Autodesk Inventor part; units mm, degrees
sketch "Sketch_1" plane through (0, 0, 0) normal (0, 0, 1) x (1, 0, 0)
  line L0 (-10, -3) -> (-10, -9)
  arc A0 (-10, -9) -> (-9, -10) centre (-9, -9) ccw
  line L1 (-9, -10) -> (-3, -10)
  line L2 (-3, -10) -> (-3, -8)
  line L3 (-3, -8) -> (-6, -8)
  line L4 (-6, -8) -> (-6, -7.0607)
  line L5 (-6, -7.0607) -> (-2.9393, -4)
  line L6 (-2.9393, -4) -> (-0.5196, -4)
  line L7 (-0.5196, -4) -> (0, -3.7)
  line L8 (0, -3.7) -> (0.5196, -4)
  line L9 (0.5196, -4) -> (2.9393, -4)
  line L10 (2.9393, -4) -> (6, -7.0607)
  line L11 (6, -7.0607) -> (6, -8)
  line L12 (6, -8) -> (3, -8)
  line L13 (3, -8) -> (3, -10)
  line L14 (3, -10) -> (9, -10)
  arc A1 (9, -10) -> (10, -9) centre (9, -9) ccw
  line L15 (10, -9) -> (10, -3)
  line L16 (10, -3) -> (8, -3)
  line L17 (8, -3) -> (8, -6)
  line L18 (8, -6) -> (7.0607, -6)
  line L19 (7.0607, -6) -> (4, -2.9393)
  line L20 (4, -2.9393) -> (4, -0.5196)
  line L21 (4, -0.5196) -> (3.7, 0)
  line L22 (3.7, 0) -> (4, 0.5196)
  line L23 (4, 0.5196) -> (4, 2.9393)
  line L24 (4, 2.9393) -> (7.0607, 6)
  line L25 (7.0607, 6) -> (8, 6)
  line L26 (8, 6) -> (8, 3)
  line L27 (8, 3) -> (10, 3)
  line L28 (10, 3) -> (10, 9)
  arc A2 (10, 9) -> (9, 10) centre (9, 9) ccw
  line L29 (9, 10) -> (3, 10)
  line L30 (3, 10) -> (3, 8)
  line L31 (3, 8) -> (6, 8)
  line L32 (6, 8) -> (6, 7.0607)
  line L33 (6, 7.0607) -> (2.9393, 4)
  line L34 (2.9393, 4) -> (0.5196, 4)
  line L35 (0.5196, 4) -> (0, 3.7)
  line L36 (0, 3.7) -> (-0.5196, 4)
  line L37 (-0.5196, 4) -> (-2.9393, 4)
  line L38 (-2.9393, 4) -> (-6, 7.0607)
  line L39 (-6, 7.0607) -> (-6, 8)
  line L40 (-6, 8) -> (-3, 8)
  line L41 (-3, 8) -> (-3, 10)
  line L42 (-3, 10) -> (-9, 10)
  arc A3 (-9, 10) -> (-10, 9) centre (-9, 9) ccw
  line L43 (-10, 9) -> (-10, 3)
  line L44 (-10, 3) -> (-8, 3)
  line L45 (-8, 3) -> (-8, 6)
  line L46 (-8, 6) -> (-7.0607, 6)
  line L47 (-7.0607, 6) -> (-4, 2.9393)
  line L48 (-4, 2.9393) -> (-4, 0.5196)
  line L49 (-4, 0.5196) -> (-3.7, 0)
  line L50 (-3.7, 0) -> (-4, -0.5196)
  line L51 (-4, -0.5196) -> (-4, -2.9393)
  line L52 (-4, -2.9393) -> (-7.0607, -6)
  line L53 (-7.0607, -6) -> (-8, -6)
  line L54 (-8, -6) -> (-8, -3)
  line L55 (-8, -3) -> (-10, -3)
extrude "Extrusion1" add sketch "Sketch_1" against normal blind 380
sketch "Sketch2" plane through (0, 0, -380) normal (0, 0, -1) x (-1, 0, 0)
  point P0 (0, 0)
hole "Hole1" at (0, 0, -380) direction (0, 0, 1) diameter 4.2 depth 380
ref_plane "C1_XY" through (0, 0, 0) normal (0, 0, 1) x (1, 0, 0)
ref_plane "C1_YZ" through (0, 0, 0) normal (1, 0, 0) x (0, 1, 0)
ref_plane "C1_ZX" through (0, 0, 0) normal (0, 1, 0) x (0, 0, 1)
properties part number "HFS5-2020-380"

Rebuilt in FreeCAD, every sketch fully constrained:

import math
import FreeCAD as App
import Part
import Sketcher
Q = App.Units.Quantity

doc = App.newDocument("Part")
body = doc.addObject("PartDesign::Body", "Body")

# Sketch on XY plane
sketch1 = body.newObject("Sketcher::SketchObject", "Sketch")
sketch1.AttachmentSupport = (doc.getObject("XY_Plane"), [""])
sketch1.MapMode = "FlatFace"
sketch1.addGeometry([
    Part.LineSegment(App.Vector(-8, -3, 0), App.Vector(-10, -3, 0)),  # 0
    Part.LineSegment(App.Vector(-10, -3, 0), App.Vector(-10, -9, 0)),  # 1
    Part.ArcOfCircle(Part.Circle(App.Vector(-9, -9, 0), App.Vector(0, 0, 1), 1), math.radians(180), math.radians(270)),  # 2
    Part.LineSegment(App.Vector(-9, -10, 0), App.Vector(-3, -10, 0)),  # 3
    Part.LineSegment(App.Vector(-3, -10, 0), App.Vector(-3, -8, 0)),  # 4
    Part.LineSegment(App.Vector(-3, -8, 0), App.Vector(-6, -8, 0)),  # 5
    Part.LineSegment(App.Vector(-6, -8, 0), App.Vector(-6, -7.1, 0)),  # 6
    Part.LineSegment(App.Vector(-6, -7.1, 0), App.Vector(-2.9, -4, 0)),  # 7
    Part.LineSegment(App.Vector(-2.9, -4, 0), App.Vector(-0.5, -4, 0)),  # 8
    Part.LineSegment(App.Vector(-0.5, -4, 0), App.Vector(0, -3.7, 0)),  # 9
    Part.LineSegment(App.Vector(0, -3.7, 0), App.Vector(0.5, -4, 0)),  # 10
    Part.LineSegment(App.Vector(0.5, -4, 0), App.Vector(2.9, -4, 0)),  # 11
    Part.LineSegment(App.Vector(2.9, -4, 0), App.Vector(6, -7.1, 0)),  # 12
    Part.LineSegment(App.Vector(6, -7.1, 0), App.Vector(6, -8, 0)),  # 13
    Part.LineSegment(App.Vector(6, -8, 0), App.Vector(3, -8, 0)),  # 14
    Part.LineSegment(App.Vector(3, -8, 0), App.Vector(3, -10, 0)),  # 15
    Part.LineSegment(App.Vector(3, -10, 0), App.Vector(9, -10, 0)),  # 16
    Part.ArcOfCircle(Part.Circle(App.Vector(9, -9, 0), App.Vector(0, 0, 1), 1), math.radians(-90), math.radians(0)),  # 17
    Part.LineSegment(App.Vector(10, -9, 0), App.Vector(10, -3, 0)),  # 18
    Part.LineSegment(App.Vector(10, -3, 0), App.Vector(8, -3, 0)),  # 19
    Part.LineSegment(App.Vector(8, -3, 0), App.Vector(8, -6, 0)),  # 20
    Part.LineSegment(App.Vector(8, -6, 0), App.Vector(7.1, -6, 0)),  # 21
    Part.LineSegment(App.Vector(7.1, -6, 0), App.Vector(4, -2.9, 0)),  # 22
    Part.LineSegment(App.Vector(4, -2.9, 0), App.Vector(4, -0.5, 0)),  # 23
    Part.LineSegment(App.Vector(4, -0.5, 0), App.Vector(3.7, 0, 0)),  # 24
    Part.LineSegment(App.Vector(3.7, 0, 0), App.Vector(4, 0.5, 0)),  # 25
    Part.LineSegment(App.Vector(4, 0.5, 0), App.Vector(4, 2.9, 0)),  # 26
    Part.LineSegment(App.Vector(4, 2.9, 0), App.Vector(7.1, 6, 0)),  # 27
    Part.LineSegment(App.Vector(7.1, 6, 0), App.Vector(8, 6, 0)),  # 28
    Part.LineSegment(App.Vector(8, 6, 0), App.Vector(8, 3, 0)),  # 29
    Part.LineSegment(App.Vector(8, 3, 0), App.Vector(10, 3, 0)),  # 30
    Part.LineSegment(App.Vector(10, 3, 0), App.Vector(10, 9, 0)),  # 31
    Part.ArcOfCircle(Part.Circle(App.Vector(9, 9, 0), App.Vector(0, 0, 1), 1), math.radians(0), math.radians(90)),  # 32
    Part.LineSegment(App.Vector(9, 10, 0), App.Vector(3, 10, 0)),  # 33
    Part.LineSegment(App.Vector(3, 10, 0), App.Vector(3, 8, 0)),  # 34
    Part.LineSegment(App.Vector(3, 8, 0), App.Vector(6, 8, 0)),  # 35
    Part.LineSegment(App.Vector(6, 8, 0), App.Vector(6, 7.1, 0)),  # 36
    Part.LineSegment(App.Vector(6, 7.1, 0), App.Vector(2.9, 4, 0)),  # 37
    Part.LineSegment(App.Vector(2.9, 4, 0), App.Vector(0.5, 4, 0)),  # 38
    Part.LineSegment(App.Vector(0.5, 4, 0), App.Vector(0, 3.7, 0)),  # 39
    Part.LineSegment(App.Vector(0, 3.7, 0), App.Vector(-0.5, 4, 0)),  # 40
    Part.LineSegment(App.Vector(-0.5, 4, 0), App.Vector(-2.9, 4, 0)),  # 41
    Part.LineSegment(App.Vector(-2.9, 4, 0), App.Vector(-6, 7.1, 0)),  # 42
    Part.LineSegment(App.Vector(-6, 7.1, 0), App.Vector(-6, 8, 0)),  # 43
    Part.LineSegment(App.Vector(-6, 8, 0), App.Vector(-3, 8, 0)),  # 44
    Part.LineSegment(App.Vector(-3, 8, 0), App.Vector(-3, 10, 0)),  # 45
    Part.LineSegment(App.Vector(-3, 10, 0), App.Vector(-9, 10, 0)),  # 46
    Part.ArcOfCircle(Part.Circle(App.Vector(-9, 9, 0), App.Vector(0, 0, 1), 1), math.radians(90), math.radians(180)),  # 47
    Part.LineSegment(App.Vector(-10, 9, 0), App.Vector(-10, 3, 0)),  # 48
    Part.LineSegment(App.Vector(-10, 3, 0), App.Vector(-8, 3, 0)),  # 49
    Part.LineSegment(App.Vector(-8, 3, 0), App.Vector(-8, 6, 0)),  # 50
    Part.LineSegment(App.Vector(-8, 6, 0), App.Vector(-7.1, 6, 0)),  # 51
    Part.LineSegment(App.Vector(-7.1, 6, 0), App.Vector(-4, 2.9, 0)),  # 52
    Part.LineSegment(App.Vector(-4, 2.9, 0), App.Vector(-4, 0.5, 0)),  # 53
    Part.LineSegment(App.Vector(-4, 0.5, 0), App.Vector(-3.7, 0, 0)),  # 54
    Part.LineSegment(App.Vector(-3.7, 0, 0), App.Vector(-4, -0.5, 0)),  # 55
    Part.LineSegment(App.Vector(-4, -0.5, 0), App.Vector(-4, -2.9, 0)),  # 56
    Part.LineSegment(App.Vector(-4, -2.9, 0), App.Vector(-7.1, -6, 0)),  # 57
    Part.LineSegment(App.Vector(-7.1, -6, 0), App.Vector(-8, -6, 0)),  # 58
    Part.LineSegment(App.Vector(-8, -6, 0), App.Vector(-8, -3, 0)),  # 59
], False)
sketch1.addConstraint([
    Sketcher.Constraint("Coincident", 0, 2, 1, 1),
    Sketcher.Constraint("Tangent", 1, 2, 2, 1),
    Sketcher.Constraint("Tangent", 2, 2, 3, 1),
    Sketcher.Constraint("Coincident", 3, 2, 4, 1),
    Sketcher.Constraint("Coincident", 4, 2, 5, 1),
    Sketcher.Constraint("Coincident", 5, 2, 6, 1),
    Sketcher.Constraint("Coincident", 6, 2, 7, 1),
    Sketcher.Constraint("Coincident", 7, 2, 8, 1),
    Sketcher.Constraint("Coincident", 8, 2, 9, 1),
    Sketcher.Constraint("Coincident", 9, 2, 10, 1),
    Sketcher.Constraint("Coincident", 10, 2, 11, 1),
    Sketcher.Constraint("Coincident", 11, 2, 12, 1),
    Sketcher.Constraint("Coincident", 12, 2, 13, 1),
    Sketcher.Constraint("Coincident", 13, 2, 14, 1),
    Sketcher.Constraint("Coincident", 14, 2, 15, 1),
    Sketcher.Constraint("Coincident", 15, 2, 16, 1),
    Sketcher.Constraint("Tangent", 16, 2, 17, 1),
    Sketcher.Constraint("Tangent", 17, 2, 18, 1),
    Sketcher.Constraint("Coincident", 18, 2, 19, 1),
    Sketcher.Constraint("Coincident", 19, 2, 20, 1),
    Sketcher.Constraint("Coincident", 20, 2, 21, 1),
    Sketcher.Constraint("Coincident", 21, 2, 22, 1),
    Sketcher.Constraint("Coincident", 22, 2, 23, 1),
    Sketcher.Constraint("Coincident", 23, 2, 24, 1),
    Sketcher.Constraint("Coincident", 24, 2, 25, 1),
    Sketcher.Constraint("Coincident", 25, 2, 26, 1),
    Sketcher.Constraint("Coincident", 26, 2, 27, 1),
    Sketcher.Constraint("Coincident", 27, 2, 28, 1),
    Sketcher.Constraint("Coincident", 28, 2, 29, 1),
    Sketcher.Constraint("Coincident", 29, 2, 30, 1),
    Sketcher.Constraint("Coincident", 30, 2, 31, 1),
    Sketcher.Constraint("Tangent", 31, 2, 32, 1),
    Sketcher.Constraint("Tangent", 32, 2, 33, 1),
    Sketcher.Constraint("Coincident", 33, 2, 34, 1),
    Sketcher.Constraint("Coincident", 34, 2, 35, 1),
    Sketcher.Constraint("Coincident", 35, 2, 36, 1),
    Sketcher.Constraint("Coincident", 36, 2, 37, 1),
    Sketcher.Constraint("Coincident", 37, 2, 38, 1),
    Sketcher.Constraint("Coincident", 38, 2, 39, 1),
    Sketcher.Constraint("Coincident", 39, 2, 40, 1),
    Sketcher.Constraint("Coincident", 40, 2, 41, 1),
    Sketcher.Constraint("Coincident", 41, 2, 42, 1),
    Sketcher.Constraint("Coincident", 42, 2, 43, 1),
    Sketcher.Constraint("Coincident", 43, 2, 44, 1),
    Sketcher.Constraint("Coincident", 44, 2, 45, 1),
    Sketcher.Constraint("Coincident", 45, 2, 46, 1),
    Sketcher.Constraint("Tangent", 46, 2, 47, 1),
    Sketcher.Constraint("Tangent", 47, 2, 48, 1),
    Sketcher.Constraint("Coincident", 48, 2, 49, 1),
    Sketcher.Constraint("Coincident", 49, 2, 50, 1),
    Sketcher.Constraint("Coincident", 50, 2, 51, 1),
    Sketcher.Constraint("Coincident", 51, 2, 52, 1),
    Sketcher.Constraint("Coincident", 52, 2, 53, 1),
    Sketcher.Constraint("Coincident", 53, 2, 54, 1),
    Sketcher.Constraint("Coincident", 54, 2, 55, 1),
    Sketcher.Constraint("Coincident", 55, 2, 56, 1),
    Sketcher.Constraint("Coincident", 56, 2, 57, 1),
    Sketcher.Constraint("Coincident", 57, 2, 58, 1),
    Sketcher.Constraint("Coincident", 58, 2, 59, 1),
    Sketcher.Constraint("Coincident", 59, 2, 0, 1),
    Sketcher.Constraint("Horizontal", 0),
    Sketcher.Constraint("Vertical", 1),
    Sketcher.Constraint("Horizontal", 3),
    Sketcher.Constraint("Vertical", 4),
    Sketcher.Constraint("Horizontal", 5),
    Sketcher.Constraint("Vertical", 6),
    Sketcher.Constraint("Horizontal", 8),
    Sketcher.Constraint("Horizontal", 11),
    Sketcher.Constraint("Vertical", 13),
    Sketcher.Constraint("Horizontal", 14),
    Sketcher.Constraint("Vertical", 15),
    Sketcher.Constraint("Horizontal", 16),
    Sketcher.Constraint("Vertical", 18),
    Sketcher.Constraint("Horizontal", 19),
    Sketcher.Constraint("Vertical", 20),
    Sketcher.Constraint("Horizontal", 21),
    Sketcher.Constraint("Vertical", 23),
    Sketcher.Constraint("Vertical", 26),
    Sketcher.Constraint("Horizontal", 28),
    Sketcher.Constraint("Vertical", 29),
    Sketcher.Constraint("Horizontal", 30),
    Sketcher.Constraint("Vertical", 31),
    Sketcher.Constraint("Horizontal", 33),
    Sketcher.Constraint("Vertical", 34),
    Sketcher.Constraint("Horizontal", 35),
    Sketcher.Constraint("Vertical", 36),
    Sketcher.Constraint("Horizontal", 38),
    Sketcher.Constraint("Horizontal", 41),
    Sketcher.Constraint("Vertical", 43),
    Sketcher.Constraint("Horizontal", 44),
    Sketcher.Constraint("Vertical", 45),
    Sketcher.Constraint("Horizontal", 46),
    Sketcher.Constraint("Vertical", 48),
    Sketcher.Constraint("Horizontal", 49),
    Sketcher.Constraint("Vertical", 50),
    Sketcher.Constraint("Horizontal", 51),
    Sketcher.Constraint("Vertical", 53),
    Sketcher.Constraint("Vertical", 56),
    Sketcher.Constraint("Horizontal", 58),
    Sketcher.Constraint("Vertical", 59),
    Sketcher.Constraint("Equal", 2, 17),
    Sketcher.Constraint("Equal", 17, 32),
    Sketcher.Constraint("Equal", 32, 47),
    Sketcher.Constraint("Symmetric", 2, 3, 32, 3, -1, 1),
    Sketcher.Constraint("Symmetric", 17, 3, 47, 3, -1, 1),
    Sketcher.Constraint("Symmetric", 4, 2, 34, 2, -1, 1),
    Sketcher.Constraint("Symmetric", 6, 2, 36, 2, -1, 1),
    Sketcher.Constraint("Symmetric", 7, 2, 37, 2, -1, 1),
    Sketcher.Constraint("Symmetric", 9, 2, 39, 2, -1, 1),
    Sketcher.Constraint("Symmetric", 10, 2, 40, 2, -1, 1),
    Sketcher.Constraint("Symmetric", 12, 2, 42, 2, -1, 1),
    Sketcher.Constraint("Symmetric", 14, 2, 44, 2, -1, 1),
    Sketcher.Constraint("Symmetric", 19, 2, 49, 2, -1, 1),
    Sketcher.Constraint("Symmetric", 21, 2, 51, 2, -1, 1),
    Sketcher.Constraint("Symmetric", 22, 2, 52, 2, -1, 1),
    Sketcher.Constraint("Symmetric", 24, 2, 54, 2, -1, 1),
    Sketcher.Constraint("Symmetric", 25, 2, 55, 2, -1, 1),
    Sketcher.Constraint("Symmetric", 27, 2, 57, 2, -1, 1),
    Sketcher.Constraint("Symmetric", 29, 2, 59, 2, -1, 1),
    Sketcher.Constraint("Symmetric", 2, 3, 17, 3, -2),
    Sketcher.Constraint("Symmetric", 8, 2, 10, 2, -2),
    Sketcher.Constraint("Symmetric", 6, 2, 12, 2, -2),
    Sketcher.Constraint("Symmetric", 4, 2, 14, 2, -2),
    Sketcher.Constraint("Symmetric", 29, 2, 49, 2, -2),
    Sketcher.Constraint("Symmetric", 27, 2, 51, 2, -2),
    Sketcher.Constraint("Symmetric", 26, 2, 52, 2, -2),
    Sketcher.Constraint("PointOnObject", 9, 2, -2),
    Sketcher.Constraint("PointOnObject", 24, 2, -1),
    Sketcher.Constraint("Perpendicular", 7, 12),
    Sketcher.Constraint("Parallel", 12, 22),
    Sketcher.Constraint("Perpendicular", 9, 24),
    Sketcher.Constraint("Perpendicular", 10, 25),
    Sketcher.Constraint("Perpendicular", 22, 27),
    Sketcher.Constraint("Perpendicular", 24, 39),
    Sketcher.Constraint("Perpendicular", 37, 42),
    Sketcher.Constraint("Perpendicular", 39, 54),
    Sketcher.Constraint("Perpendicular", 52, 57),
    Sketcher.Constraint("Equal", 46, 1),
    Sketcher.Constraint("Equal", 49, 4),
    Sketcher.Constraint("Equal", 58, 6),
    Sketcher.Constraint("Equal", 44, 20),
    Sketcher.Constraint("Equal", 41, 23),
    Sketcher.Constraint("Equal", 12, 22),
    Sketcher.Constraint("Equal", 10, 24),
    Sketcher.Constraint("Radius", 2, Q("1 mm")),
    Sketcher.Constraint("DistanceX", 0, 2, 0, 1, Q("2 mm")),
    Sketcher.Constraint("DistanceX", 3, 1, 3, 2, Q("6 mm")),
    Sketcher.Constraint("DistanceX", 5, 2, 5, 1, Q("3 mm")),
    Sketcher.Constraint("Angle", 9, Q("30.0007 deg")),
    Sketcher.Constraint("DistanceX", 2, 3, -1, 1, Q("9 mm")),
    Sketcher.Constraint("DistanceY", 7, 2, -1, 1, Q("4 mm")),
    Sketcher.Constraint("Distance", 9, Q("0.6 mm")),
    Sketcher.Constraint("DistanceX", 8, 1, 8, 2, Q("2.4197 mm")),
])
pad1 = body.newObject("PartDesign::Pad", "Pad")
pad1.Profile = sketch1
pad1.Length = 380
pad1.Reversed = True

# Sketch on XY plane
sketch2 = body.newObject("Sketcher::SketchObject", "Sketch001")
sketch2.AttachmentSupport = (doc.getObject("XY_Plane"), [""])
sketch2.MapMode = "FlatFace"
sketch2.AttachmentOffset = App.Placement(App.Vector(0, 0, -380), App.Rotation())
sketch2.addGeometry(Part.Circle(App.Vector(0, 0, 0), App.Vector(0, 0, 1), 2.1), False)
sketch2.addConstraint([
    Sketcher.Constraint("Coincident", 0, 3, -1, 1),
    Sketcher.Constraint("Diameter", 0, Q("4.2 mm")),
])
doc.recompute()
hole = body.newObject("PartDesign::Hole", "Hole")
hole.Profile = sketch2
hole.ThreadType = "None"
hole.Diameter = 4.2
hole.DepthType = "Dimension"
hole.Depth = 380
hole.DrillPoint = "Flat"
hole.Reversed = True

doc.recompute()
